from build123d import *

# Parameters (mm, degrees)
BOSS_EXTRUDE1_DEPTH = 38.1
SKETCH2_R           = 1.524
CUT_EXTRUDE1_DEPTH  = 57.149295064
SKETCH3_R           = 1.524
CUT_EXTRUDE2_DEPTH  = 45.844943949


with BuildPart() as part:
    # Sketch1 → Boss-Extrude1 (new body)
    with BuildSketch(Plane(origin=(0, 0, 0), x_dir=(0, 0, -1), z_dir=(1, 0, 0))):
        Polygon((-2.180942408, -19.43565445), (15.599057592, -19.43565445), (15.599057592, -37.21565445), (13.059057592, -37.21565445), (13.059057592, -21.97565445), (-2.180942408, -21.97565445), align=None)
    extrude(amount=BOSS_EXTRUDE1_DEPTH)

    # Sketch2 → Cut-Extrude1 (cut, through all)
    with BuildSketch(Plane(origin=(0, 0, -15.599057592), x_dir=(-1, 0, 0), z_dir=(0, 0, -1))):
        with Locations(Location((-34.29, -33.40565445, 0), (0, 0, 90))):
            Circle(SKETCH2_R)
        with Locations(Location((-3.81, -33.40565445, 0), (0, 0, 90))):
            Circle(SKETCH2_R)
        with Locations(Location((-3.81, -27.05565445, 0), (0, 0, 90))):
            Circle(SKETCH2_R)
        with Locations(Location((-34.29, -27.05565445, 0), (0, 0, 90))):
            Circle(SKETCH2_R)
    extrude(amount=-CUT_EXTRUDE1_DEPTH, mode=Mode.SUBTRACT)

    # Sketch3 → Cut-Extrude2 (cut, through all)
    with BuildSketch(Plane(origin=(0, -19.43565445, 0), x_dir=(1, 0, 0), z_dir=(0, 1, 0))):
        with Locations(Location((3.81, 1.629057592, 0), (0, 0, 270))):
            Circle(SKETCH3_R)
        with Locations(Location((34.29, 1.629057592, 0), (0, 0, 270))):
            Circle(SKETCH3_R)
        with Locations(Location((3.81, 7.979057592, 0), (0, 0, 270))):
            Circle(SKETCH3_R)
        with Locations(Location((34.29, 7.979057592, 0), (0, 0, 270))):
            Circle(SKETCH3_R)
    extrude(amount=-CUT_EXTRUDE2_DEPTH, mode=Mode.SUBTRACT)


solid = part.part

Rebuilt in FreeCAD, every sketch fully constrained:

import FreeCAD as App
import Part
import Sketcher
Q = App.Units.Quantity


def add_polygon(sketch, points):
    """Adds a closed chain of lines whose ends are joined by coincident constraints."""
    first, n = sketch.GeometryCount, len(points)
    for a, b in zip(points, points[1:] + points[:1]):
        sketch.addGeometry(Part.LineSegment(App.Vector(*a, 0), App.Vector(*b, 0)), False)
    for i in range(n):
        sketch.addConstraint(Sketcher.Constraint("Coincident", first + i, 2, first + (i + 1) % n, 1))

doc = App.newDocument("Part")
body = doc.addObject("PartDesign::Body", "Body")

# Sketch on YZ plane
sketch1 = body.newObject("Sketcher::SketchObject", "Sketch")
sketch1.AttachmentSupport = (doc.getObject("YZ_Plane"), [""])
sketch1.MapMode = "FlatFace"
add_polygon(sketch1, [(-19.435654, -15.599058), (-19.435654, 2.180942), (-21.975654, 2.180942), (-21.975654, -13.059058), (-37.215654, -13.059058), (-37.215654, -15.599058)])  # lines 0-5
sketch1.addConstraint([
    Sketcher.Constraint("Vertical", 0),
    Sketcher.Constraint("Horizontal", 1),
    Sketcher.Constraint("Vertical", 2),
    Sketcher.Constraint("Horizontal", 3),
    Sketcher.Constraint("Vertical", 4),
    Sketcher.Constraint("Horizontal", 5),
    Sketcher.Constraint("Equal", 5, 0),
    Sketcher.Constraint("Equal", 3, 2),
    Sketcher.Constraint("DistanceX", 1, 2, 1, 1, Q("0.1 in")),
    Sketcher.Constraint("DistanceX", 3, 2, 3, 1, Q("0.6 in")),
    Sketcher.Constraint("DistanceX", 0, 2, -1, 1, 19.435654),
    Sketcher.Constraint("DistanceY", -1, 1, 0, 2, 2.180942),
])
pad1 = body.newObject("PartDesign::Pad", "Pad")
pad1.Profile = sketch1
pad1.Length = Q("1.5 in")

# Sketch on XY plane
sketch2 = body.newObject("Sketcher::SketchObject", "Sketch001")
sketch2.AttachmentSupport = (doc.getObject("XY_Plane"), [""])
sketch2.MapMode = "FlatFace"
sketch2.AttachmentOffset = App.Placement(App.Vector(0, 0, -15.599058), App.Rotation())
sketch2.addGeometry([
    Part.Circle(App.Vector(34.29, -33.405654, 0), App.Vector(0, 0, 1), 1.524),
    Part.Circle(App.Vector(3.81, -33.405654, 0), App.Vector(0, 0, 1), 1.524),
    Part.Circle(App.Vector(3.81, -27.055654, 0), App.Vector(0, 0, 1), 1.524),
    Part.Circle(App.Vector(34.29, -27.055654, 0), App.Vector(0, 0, 1), 1.524),
], False)
sketch2.addConstraint([
    Sketcher.Constraint("Equal", 0, 1),
    Sketcher.Constraint("Equal", 1, 2),
    Sketcher.Constraint("Equal", 2, 3),
    Sketcher.Constraint("Horizontal", 0, 3, 1, 3),
    Sketcher.Constraint("Horizontal", 2, 3, 3, 3),
    Sketcher.Constraint("Vertical", 1, 3, 2, 3),
    Sketcher.Constraint("Vertical", 0, 3, 3, 3),
    Sketcher.Constraint("Diameter", 0, Q("0.12 in")),
    Sketcher.Constraint("DistanceX", 1, 3, 0, 3, Q("1.2 in")),
    Sketcher.Constraint("DistanceX", -1, 1, 0, 3, Q("1.35 in")),
    Sketcher.Constraint("DistanceY", 1, 3, 2, 3, Q("0.25 in")),
    Sketcher.Constraint("DistanceY", 0, 3, -1, 1, 33.405654),
])
pocket1 = body.newObject("PartDesign::Pocket", "Pocket")
pocket1.Profile = sketch2
pocket1.Type = "ThroughAll"
pocket1.Reversed = True

# Sketch on XZ plane
sketch3 = body.newObject("Sketcher::SketchObject", "Sketch002")
sketch3.AttachmentSupport = (doc.getObject("XZ_Plane"), [""])
sketch3.MapMode = "FlatFace"
sketch3.AttachmentOffset = App.Placement(App.Vector(0, 0, 19.435654), App.Rotation())
sketch3.addGeometry([
    Part.Circle(App.Vector(3.81, -1.629058, 0), App.Vector(0, 0, 1), 1.524),
    Part.Circle(App.Vector(34.29, -1.629058, 0), App.Vector(0, 0, 1), 1.524),
    Part.Circle(App.Vector(3.81, -7.979058, 0), App.Vector(0, 0, 1), 1.524),
    Part.Circle(App.Vector(34.29, -7.979058, 0), App.Vector(0, 0, 1), 1.524),
], False)
sketch3.addConstraint([
    Sketcher.Constraint("Equal", 0, 1),
    Sketcher.Constraint("Equal", 1, 2),
    Sketcher.Constraint("Equal", 2, 3),
    Sketcher.Constraint("Horizontal", 0, 3, 1, 3),
    Sketcher.Constraint("Horizontal", 2, 3, 3, 3),
    Sketcher.Constraint("Vertical", 0, 3, 2, 3),
    Sketcher.Constraint("Vertical", 1, 3, 3, 3),
    Sketcher.Constraint("Diameter", 0, Q("0.12 in")),
    Sketcher.Constraint("DistanceX", 0, 3, 1, 3, Q("1.2 in")),
    Sketcher.Constraint("DistanceX", -1, 1, 0, 3, Q("0.15 in")),
    Sketcher.Constraint("DistanceY", 2, 3, 0, 3, Q("0.25 in")),
    Sketcher.Constraint("DistanceY", 0, 3, -1, 1, 1.629058),
])
pocket2 = body.newObject("PartDesign::Pocket", "Pocket001")
pocket2.Profile = sketch3
pocket2.Type = "ThroughAll"
pocket2.Reversed = True

doc.recompute()
